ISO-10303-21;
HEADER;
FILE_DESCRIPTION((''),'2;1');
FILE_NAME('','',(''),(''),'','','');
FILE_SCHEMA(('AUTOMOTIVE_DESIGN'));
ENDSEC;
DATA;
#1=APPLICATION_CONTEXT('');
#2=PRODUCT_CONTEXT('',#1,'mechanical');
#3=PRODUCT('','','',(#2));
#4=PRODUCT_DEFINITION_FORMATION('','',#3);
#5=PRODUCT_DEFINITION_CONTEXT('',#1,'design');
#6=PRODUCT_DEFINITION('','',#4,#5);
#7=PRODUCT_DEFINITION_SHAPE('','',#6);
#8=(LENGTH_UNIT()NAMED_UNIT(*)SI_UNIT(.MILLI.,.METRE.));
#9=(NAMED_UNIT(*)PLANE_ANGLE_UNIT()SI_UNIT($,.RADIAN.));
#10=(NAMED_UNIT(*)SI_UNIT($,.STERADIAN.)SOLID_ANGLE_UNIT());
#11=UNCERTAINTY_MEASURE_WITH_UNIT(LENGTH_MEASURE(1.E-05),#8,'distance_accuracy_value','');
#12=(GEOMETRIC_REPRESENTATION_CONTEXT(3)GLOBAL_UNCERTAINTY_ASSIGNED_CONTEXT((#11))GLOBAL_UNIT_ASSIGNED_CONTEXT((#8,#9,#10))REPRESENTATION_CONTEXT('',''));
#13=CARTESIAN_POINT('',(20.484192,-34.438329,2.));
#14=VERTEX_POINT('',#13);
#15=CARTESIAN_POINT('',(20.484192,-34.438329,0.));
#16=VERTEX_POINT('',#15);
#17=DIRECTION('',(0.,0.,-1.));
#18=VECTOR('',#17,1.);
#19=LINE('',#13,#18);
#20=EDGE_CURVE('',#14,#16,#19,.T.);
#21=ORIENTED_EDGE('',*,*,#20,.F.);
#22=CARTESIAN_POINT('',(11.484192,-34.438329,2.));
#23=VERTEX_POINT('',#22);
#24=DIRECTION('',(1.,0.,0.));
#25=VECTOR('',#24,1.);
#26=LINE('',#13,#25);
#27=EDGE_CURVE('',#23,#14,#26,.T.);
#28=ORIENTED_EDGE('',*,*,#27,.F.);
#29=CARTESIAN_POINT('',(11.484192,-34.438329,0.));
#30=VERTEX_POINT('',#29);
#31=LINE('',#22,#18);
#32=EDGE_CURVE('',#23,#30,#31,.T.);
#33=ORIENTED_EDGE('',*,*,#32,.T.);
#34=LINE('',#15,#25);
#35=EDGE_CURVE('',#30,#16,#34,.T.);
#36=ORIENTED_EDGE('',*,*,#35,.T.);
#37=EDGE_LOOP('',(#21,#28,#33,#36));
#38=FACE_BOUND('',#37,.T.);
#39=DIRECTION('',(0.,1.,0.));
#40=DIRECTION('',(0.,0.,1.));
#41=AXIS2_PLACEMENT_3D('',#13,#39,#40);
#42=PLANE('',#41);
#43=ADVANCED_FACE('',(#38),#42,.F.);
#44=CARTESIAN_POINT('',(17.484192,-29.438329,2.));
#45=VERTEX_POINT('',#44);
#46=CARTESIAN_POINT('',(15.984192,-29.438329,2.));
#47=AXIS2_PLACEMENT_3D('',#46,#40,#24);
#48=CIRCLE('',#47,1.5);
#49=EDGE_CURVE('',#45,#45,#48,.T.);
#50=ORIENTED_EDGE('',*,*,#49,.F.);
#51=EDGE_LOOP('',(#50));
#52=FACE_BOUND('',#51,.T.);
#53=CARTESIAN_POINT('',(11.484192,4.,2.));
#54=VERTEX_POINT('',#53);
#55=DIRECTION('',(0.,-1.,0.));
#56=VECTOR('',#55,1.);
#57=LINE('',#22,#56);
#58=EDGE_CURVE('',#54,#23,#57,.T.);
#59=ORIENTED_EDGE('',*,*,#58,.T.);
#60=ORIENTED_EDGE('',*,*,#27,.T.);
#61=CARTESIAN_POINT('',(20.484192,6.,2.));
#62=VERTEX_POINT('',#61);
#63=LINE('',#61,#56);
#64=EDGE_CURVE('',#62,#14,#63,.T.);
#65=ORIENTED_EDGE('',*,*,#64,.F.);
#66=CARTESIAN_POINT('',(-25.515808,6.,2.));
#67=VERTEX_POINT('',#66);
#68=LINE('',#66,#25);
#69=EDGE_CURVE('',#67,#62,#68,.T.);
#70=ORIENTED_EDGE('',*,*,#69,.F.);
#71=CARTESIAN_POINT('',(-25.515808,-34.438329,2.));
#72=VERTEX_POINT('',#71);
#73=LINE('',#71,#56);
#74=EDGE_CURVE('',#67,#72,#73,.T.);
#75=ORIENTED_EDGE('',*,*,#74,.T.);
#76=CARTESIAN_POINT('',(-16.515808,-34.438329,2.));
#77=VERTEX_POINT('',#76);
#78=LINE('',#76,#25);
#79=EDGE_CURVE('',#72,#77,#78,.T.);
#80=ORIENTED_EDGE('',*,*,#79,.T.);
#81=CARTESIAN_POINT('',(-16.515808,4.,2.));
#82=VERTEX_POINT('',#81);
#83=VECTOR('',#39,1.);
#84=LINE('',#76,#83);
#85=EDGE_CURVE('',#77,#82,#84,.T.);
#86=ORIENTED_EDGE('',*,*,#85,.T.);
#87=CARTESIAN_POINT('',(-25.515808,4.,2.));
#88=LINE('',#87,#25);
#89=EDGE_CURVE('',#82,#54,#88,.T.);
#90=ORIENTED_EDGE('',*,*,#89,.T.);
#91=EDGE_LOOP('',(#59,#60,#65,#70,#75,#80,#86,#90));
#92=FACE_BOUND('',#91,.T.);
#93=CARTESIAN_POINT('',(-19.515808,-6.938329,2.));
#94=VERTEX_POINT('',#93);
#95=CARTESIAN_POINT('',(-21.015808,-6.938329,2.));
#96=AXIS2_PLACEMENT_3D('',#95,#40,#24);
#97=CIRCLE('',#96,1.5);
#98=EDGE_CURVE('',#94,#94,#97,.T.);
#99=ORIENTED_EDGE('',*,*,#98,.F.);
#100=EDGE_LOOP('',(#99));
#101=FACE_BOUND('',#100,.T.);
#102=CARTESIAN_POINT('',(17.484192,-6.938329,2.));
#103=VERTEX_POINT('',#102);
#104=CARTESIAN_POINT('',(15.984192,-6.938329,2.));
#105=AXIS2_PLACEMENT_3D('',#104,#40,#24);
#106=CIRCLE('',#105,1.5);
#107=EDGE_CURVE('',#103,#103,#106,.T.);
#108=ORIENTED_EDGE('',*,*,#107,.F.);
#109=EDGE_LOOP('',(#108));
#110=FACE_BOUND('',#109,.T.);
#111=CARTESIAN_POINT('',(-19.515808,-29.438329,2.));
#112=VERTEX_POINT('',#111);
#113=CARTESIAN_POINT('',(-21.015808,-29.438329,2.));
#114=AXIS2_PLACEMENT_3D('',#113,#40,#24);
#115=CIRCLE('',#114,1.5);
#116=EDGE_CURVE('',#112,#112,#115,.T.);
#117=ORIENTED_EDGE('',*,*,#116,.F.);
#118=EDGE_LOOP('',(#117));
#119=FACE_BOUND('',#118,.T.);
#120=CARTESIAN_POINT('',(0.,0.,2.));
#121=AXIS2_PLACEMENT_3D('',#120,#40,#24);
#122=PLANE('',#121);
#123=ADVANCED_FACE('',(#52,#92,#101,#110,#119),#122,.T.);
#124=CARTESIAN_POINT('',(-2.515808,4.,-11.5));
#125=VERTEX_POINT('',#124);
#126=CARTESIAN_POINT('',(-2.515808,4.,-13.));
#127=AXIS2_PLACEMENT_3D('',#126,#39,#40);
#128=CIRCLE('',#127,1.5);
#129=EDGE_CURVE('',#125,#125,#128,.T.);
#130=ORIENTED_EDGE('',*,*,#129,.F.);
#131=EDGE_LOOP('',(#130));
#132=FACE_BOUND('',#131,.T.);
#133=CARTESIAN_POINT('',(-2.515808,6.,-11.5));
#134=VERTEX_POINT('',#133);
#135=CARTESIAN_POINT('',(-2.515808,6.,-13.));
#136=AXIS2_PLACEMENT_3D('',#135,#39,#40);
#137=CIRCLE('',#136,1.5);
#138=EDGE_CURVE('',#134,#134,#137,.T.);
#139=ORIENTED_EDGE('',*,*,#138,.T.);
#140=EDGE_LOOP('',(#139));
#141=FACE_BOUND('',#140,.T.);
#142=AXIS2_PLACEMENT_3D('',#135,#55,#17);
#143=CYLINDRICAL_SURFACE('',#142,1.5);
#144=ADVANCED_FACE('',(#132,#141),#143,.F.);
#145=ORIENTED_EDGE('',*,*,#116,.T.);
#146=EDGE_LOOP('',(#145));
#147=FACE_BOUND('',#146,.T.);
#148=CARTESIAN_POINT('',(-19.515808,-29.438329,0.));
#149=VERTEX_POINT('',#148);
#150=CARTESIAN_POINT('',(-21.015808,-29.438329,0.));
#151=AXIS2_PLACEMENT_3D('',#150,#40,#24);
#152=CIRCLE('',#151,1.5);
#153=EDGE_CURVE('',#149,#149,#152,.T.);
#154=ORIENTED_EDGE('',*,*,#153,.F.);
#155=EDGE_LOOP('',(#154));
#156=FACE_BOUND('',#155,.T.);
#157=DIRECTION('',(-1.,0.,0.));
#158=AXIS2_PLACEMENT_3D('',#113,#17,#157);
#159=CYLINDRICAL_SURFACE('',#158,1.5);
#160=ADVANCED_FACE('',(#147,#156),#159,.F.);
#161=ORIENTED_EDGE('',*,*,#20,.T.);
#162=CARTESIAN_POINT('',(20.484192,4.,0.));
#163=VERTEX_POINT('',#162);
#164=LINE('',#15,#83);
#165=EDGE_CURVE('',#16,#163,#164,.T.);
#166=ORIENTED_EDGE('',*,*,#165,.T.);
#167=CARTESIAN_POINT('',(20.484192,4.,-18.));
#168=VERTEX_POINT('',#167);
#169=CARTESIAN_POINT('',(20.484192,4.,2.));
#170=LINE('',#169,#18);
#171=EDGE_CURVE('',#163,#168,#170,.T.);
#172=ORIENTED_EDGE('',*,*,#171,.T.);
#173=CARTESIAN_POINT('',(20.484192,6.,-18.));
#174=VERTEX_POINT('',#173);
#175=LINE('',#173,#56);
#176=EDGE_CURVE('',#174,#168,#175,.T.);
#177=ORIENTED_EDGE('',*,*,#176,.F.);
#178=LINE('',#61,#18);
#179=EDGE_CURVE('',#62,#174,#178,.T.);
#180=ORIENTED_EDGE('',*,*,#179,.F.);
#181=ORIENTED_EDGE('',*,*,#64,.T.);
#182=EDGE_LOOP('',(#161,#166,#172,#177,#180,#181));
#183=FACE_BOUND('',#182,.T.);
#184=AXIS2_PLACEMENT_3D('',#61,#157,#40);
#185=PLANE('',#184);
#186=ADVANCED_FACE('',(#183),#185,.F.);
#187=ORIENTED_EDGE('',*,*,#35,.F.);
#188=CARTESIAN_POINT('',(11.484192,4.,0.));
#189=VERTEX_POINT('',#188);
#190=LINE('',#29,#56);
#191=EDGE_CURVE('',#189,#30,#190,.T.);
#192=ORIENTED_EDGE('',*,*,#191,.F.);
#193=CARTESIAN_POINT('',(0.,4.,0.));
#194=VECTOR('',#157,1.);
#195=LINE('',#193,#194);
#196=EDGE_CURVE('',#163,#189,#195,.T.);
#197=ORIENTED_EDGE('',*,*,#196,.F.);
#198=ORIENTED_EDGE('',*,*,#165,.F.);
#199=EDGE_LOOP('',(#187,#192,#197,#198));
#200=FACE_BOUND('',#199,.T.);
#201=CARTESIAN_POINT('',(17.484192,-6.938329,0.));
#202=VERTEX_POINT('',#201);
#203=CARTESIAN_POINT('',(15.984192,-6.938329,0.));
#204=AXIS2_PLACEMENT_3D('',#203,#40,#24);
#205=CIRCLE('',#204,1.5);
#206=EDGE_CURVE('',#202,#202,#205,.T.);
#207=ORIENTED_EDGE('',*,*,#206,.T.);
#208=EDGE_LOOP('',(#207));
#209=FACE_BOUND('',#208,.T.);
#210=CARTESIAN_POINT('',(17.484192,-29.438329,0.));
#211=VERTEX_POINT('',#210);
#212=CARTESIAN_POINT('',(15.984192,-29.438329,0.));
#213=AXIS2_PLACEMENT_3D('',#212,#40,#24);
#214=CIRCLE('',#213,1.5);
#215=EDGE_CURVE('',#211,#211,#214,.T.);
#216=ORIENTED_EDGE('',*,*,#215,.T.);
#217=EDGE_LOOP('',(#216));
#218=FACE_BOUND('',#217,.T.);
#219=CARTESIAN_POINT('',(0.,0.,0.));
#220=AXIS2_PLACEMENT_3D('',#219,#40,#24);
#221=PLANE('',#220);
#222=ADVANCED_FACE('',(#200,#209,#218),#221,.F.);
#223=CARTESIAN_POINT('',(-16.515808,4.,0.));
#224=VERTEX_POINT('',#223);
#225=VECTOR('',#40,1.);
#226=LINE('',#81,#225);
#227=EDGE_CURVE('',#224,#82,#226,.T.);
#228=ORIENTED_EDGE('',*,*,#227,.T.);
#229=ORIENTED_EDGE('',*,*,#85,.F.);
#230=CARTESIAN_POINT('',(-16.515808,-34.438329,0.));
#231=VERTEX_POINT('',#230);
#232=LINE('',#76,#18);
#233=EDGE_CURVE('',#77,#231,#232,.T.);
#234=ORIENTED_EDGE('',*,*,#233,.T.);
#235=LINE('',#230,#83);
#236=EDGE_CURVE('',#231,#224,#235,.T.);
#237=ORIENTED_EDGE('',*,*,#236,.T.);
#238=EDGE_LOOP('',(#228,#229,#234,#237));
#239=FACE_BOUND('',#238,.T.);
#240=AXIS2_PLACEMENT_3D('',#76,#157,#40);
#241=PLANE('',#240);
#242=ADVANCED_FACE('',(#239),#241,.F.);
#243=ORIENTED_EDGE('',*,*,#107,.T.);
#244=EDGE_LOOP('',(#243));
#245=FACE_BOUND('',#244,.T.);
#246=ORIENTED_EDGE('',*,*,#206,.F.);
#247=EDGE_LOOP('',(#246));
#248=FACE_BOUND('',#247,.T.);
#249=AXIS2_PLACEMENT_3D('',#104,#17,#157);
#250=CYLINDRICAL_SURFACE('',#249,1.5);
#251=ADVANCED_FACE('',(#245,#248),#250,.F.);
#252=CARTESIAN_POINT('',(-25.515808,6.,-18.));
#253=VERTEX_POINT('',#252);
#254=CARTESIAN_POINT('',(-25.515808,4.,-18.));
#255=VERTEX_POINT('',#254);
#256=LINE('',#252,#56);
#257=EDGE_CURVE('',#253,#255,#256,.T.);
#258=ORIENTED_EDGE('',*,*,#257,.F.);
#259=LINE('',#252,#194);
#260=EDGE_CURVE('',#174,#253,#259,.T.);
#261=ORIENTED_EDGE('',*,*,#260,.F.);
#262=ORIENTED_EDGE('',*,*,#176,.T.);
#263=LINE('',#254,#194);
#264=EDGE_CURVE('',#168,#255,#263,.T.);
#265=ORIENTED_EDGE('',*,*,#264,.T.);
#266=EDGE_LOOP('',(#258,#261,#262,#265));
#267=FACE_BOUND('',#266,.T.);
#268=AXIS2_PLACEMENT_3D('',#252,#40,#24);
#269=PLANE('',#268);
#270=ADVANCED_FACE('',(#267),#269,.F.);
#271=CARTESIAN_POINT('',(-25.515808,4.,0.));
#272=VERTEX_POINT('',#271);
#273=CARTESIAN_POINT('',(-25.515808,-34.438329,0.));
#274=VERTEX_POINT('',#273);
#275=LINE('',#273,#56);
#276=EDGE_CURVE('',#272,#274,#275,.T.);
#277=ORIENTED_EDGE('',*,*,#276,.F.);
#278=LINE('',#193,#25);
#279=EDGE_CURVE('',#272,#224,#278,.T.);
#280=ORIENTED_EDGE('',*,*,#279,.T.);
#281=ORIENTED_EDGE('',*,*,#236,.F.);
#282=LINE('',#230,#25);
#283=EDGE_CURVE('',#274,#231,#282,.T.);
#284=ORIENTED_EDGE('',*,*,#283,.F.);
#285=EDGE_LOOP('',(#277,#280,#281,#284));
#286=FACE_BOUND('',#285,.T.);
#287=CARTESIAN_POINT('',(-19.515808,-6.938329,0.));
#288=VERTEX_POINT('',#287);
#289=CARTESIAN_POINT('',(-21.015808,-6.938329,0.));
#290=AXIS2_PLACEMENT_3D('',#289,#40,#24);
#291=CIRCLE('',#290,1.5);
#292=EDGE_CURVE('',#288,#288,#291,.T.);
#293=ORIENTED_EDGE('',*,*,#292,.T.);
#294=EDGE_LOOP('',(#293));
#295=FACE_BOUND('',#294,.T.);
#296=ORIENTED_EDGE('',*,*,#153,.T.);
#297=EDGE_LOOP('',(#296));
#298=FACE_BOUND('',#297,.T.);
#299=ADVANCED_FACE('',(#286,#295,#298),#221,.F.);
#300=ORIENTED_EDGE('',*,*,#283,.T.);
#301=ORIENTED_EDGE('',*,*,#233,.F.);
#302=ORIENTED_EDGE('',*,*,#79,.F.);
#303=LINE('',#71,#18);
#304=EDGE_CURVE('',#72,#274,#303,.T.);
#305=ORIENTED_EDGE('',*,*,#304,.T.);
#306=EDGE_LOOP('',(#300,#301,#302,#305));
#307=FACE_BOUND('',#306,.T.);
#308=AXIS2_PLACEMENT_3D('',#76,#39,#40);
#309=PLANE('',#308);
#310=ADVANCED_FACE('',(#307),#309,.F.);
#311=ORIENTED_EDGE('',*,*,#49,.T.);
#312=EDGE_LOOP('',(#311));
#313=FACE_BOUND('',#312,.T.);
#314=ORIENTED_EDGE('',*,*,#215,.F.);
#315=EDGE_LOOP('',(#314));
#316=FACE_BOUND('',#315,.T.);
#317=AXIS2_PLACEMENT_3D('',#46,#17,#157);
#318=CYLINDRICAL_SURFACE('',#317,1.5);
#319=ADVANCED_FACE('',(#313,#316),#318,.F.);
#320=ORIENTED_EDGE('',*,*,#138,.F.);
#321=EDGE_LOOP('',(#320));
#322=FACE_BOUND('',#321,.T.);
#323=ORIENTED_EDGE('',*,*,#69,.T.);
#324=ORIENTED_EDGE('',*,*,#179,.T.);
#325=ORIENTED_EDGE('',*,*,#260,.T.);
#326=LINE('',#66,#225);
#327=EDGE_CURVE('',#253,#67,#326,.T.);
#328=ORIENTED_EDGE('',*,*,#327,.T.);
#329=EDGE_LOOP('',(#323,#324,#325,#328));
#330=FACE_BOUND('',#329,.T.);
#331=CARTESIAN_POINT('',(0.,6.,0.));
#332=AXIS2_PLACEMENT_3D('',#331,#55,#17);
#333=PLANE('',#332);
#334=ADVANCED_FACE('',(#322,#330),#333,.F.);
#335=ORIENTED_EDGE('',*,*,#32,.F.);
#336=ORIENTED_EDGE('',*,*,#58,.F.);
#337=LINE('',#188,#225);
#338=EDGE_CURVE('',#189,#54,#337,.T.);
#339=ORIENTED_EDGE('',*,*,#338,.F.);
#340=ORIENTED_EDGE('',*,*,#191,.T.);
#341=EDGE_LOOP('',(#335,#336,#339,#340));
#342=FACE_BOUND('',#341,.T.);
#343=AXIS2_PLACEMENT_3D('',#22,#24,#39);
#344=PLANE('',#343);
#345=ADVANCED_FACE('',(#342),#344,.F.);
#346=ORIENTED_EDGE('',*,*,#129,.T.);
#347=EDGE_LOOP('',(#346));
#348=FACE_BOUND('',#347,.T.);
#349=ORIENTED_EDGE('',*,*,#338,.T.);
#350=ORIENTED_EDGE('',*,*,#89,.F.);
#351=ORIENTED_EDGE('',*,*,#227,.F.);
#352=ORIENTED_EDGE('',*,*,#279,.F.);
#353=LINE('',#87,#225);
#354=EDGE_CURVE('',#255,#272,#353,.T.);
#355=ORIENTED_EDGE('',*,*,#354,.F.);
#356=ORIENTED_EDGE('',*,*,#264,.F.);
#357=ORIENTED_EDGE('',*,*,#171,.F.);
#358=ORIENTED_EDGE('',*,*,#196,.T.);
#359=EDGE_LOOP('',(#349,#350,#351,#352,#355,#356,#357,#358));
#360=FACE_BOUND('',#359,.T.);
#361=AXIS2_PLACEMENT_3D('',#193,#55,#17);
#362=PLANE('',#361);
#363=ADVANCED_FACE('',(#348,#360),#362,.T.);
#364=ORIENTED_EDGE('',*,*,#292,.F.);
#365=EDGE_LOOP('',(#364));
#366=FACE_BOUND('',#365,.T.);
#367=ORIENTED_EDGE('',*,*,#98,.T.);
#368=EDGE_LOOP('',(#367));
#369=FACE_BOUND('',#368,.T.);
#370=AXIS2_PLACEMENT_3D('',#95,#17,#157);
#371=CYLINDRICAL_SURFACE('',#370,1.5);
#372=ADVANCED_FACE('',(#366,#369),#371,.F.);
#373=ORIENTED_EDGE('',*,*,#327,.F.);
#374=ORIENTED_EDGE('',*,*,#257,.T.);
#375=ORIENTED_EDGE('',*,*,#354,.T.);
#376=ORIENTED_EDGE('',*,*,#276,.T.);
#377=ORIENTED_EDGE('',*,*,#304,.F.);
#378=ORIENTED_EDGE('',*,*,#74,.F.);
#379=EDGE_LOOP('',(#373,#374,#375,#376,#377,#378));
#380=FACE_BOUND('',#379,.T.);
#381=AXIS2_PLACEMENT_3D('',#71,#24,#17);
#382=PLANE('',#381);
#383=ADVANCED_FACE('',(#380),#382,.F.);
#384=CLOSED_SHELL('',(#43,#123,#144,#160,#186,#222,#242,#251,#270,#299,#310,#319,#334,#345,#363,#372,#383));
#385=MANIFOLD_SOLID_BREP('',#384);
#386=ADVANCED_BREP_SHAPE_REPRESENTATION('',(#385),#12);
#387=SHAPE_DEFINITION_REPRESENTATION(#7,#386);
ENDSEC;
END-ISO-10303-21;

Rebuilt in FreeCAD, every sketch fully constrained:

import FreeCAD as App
import Part
import Sketcher
from FreeCAD import Vector


def add_polygon(sketch, points):
    """Adds a closed chain of lines whose ends are joined by coincident constraints."""
    first, n = sketch.GeometryCount, len(points)
    for a, b in zip(points, points[1:] + points[:1]):
        sketch.addGeometry(Part.LineSegment(App.Vector(*a, 0), App.Vector(*b, 0)), False)
    for i in range(n):
        sketch.addConstraint(Sketcher.Constraint("Coincident", first + i, 2, first + (i + 1) % n, 1))

doc = App.newDocument("Part")
params = doc.addObject("Spreadsheet::Sheet", "Params")
for row, (alias, value) in enumerate([
    ("sketch1_diameter", "3 mm"),
    ("sketch1_width", "9 mm"),
    ("sketch1_height", "40 mm"),
    ("pad1_length", "2 mm"),
    ("sketch2_diameter", "3 mm"),
    ("sketch2_width", "9 mm"),
    ("sketch2_height", "40 mm"),
    ("pad2_length", "2 mm"),
    ("sketch3_diameter", "3 mm"),
    ("sketch3_width", "46 mm"),
    ("sketch3_height", "20 mm"),
    ("pad3_length", "2 mm"),
], start=1):
    params.set(f"A{row}", alias)
    params.set(f"B{row}", "=" + value)
    params.setAlias(f"B{row}", alias)

body = doc.addObject("PartDesign::Body", "Body")

sketch1 = doc.addObject("Sketcher::SketchObject", "Sketch")
body.addObject(sketch1)
sketch1.AttachmentSupport = (doc.XY_Plane, [""])
sketch1.MapMode = "FlatFace"
add_polygon(sketch1, [(-25.515808, 5.561671), (-25.515808, -34.438329), (-16.515808, -34.438329), (-16.515808, 5.561671)])
sketch1.addGeometry(Part.Circle(Vector(-21.015808, -29.438329, 0), Vector(0, 0, 1), 1.5), False)
sketch1.addGeometry(Part.Circle(Vector(-21.015808, -6.938329, 0), Vector(0, 0, 1), 1.5), False)
sketch1.addConstraint(Sketcher.Constraint("Vertical", 0))
sketch1.addConstraint(Sketcher.Constraint("Horizontal", 1))
sketch1.addConstraint(Sketcher.Constraint("Vertical", 2))
sketch1.addConstraint(Sketcher.Constraint("Horizontal", 3))
sketch1.addConstraint(Sketcher.Constraint("Equal", 4, 5))
sketch1.addConstraint(Sketcher.Constraint("Vertical", 4, 3, 5, 3))
sketch1.addConstraint(Sketcher.Constraint("Diameter", 4, 3.0))
sketch1.addConstraint(Sketcher.Constraint("DistanceX", 1, 1, 1, 2, 9.0))
sketch1.addConstraint(Sketcher.Constraint("DistanceY", 0, 2, 0, 1, 40.0))
sketch1.addConstraint(Sketcher.Constraint("DistanceY", 0, 2, 4, 3, 5.0))
sketch1.addConstraint(Sketcher.Constraint("DistanceY", 4, 3, 5, 3, 22.5))
sketch1.addConstraint(Sketcher.Constraint("DistanceX", 0, 2, 4, 3, 4.5))
sketch1.addConstraint(Sketcher.Constraint("DistanceX", 4, 3, -1, 1, 21.015808))
sketch1.addConstraint(Sketcher.Constraint("DistanceY", 4, 3, -1, 1, 29.438329))
sketch1.setExpression("Constraints[10]", "Params.sketch1_diameter")
sketch1.setExpression("Constraints[11]", "Params.sketch1_width")
sketch1.setExpression("Constraints[12]", "Params.sketch1_height")
pad1 = doc.addObject("PartDesign::Pad", "Pad")
body.addObject(pad1)
pad1.Profile = sketch1
pad1.setExpression("Length", "Params.pad1_length")
body2 = doc.addObject("PartDesign::Body", "Body001")

sketch2 = doc.addObject("Sketcher::SketchObject", "Sketch001")
body2.addObject(sketch2)
sketch2.AttachmentSupport = (doc.getObject("XY_Plane001"), [""])
sketch2.MapMode = "FlatFace"
add_polygon(sketch2, [(11.484192, 5.561671), (11.484192, -34.438329), (20.484192, -34.438329), (20.484192, 5.561671)])
sketch2.addGeometry(Part.Circle(Vector(15.984192, -29.438329, 0), Vector(0, 0, 1), 1.5), False)
sketch2.addGeometry(Part.Circle(Vector(15.984192, -6.938329, 0), Vector(0, 0, 1), 1.5), False)
sketch2.addConstraint(Sketcher.Constraint("Vertical", 0))
sketch2.addConstraint(Sketcher.Constraint("Horizontal", 1))
sketch2.addConstraint(Sketcher.Constraint("Vertical", 2))
sketch2.addConstraint(Sketcher.Constraint("Horizontal", 3))
sketch2.addConstraint(Sketcher.Constraint("Equal", 4, 5))
sketch2.addConstraint(Sketcher.Constraint("Vertical", 4, 3, 5, 3))
sketch2.addConstraint(Sketcher.Constraint("Diameter", 4, 3.0))
sketch2.addConstraint(Sketcher.Constraint("DistanceX", 1, 1, 1, 2, 9.0))
sketch2.addConstraint(Sketcher.Constraint("DistanceY", 0, 2, 0, 1, 40.0))
sketch2.addConstraint(Sketcher.Constraint("DistanceY", 0, 2, 4, 3, 5.0))
sketch2.addConstraint(Sketcher.Constraint("DistanceY", 4, 3, 5, 3, 22.5))
sketch2.addConstraint(Sketcher.Constraint("DistanceX", 0, 2, 4, 3, 4.5))
sketch2.addConstraint(Sketcher.Constraint("DistanceX", -1, 1, 4, 3, 15.984192))
sketch2.addConstraint(Sketcher.Constraint("DistanceY", 4, 3, -1, 1, 29.438329))
sketch2.setExpression("Constraints[10]", "Params.sketch2_diameter")
sketch2.setExpression("Constraints[11]", "Params.sketch2_width")
sketch2.setExpression("Constraints[12]", "Params.sketch2_height")
pad2 = doc.addObject("PartDesign::Pad", "Pad001")
body2.addObject(pad2)
pad2.Profile = sketch2
pad2.setExpression("Length", "Params.pad2_length")
body.AllowCompound = True
doc.recompute()

boolean = doc.addObject("PartDesign::Boolean", "Boolean")
body.addObject(boolean)
boolean.Type = "Fuse"
boolean.addObjects([body2])

sketch3 = doc.addObject("Sketcher::SketchObject", "Sketch002")
body.addObject(sketch3)
sketch3.AttachmentSupport = (doc.XZ_Plane, [""])
sketch3.MapMode = "FlatFace"
sketch3.AttachmentOffset = App.Placement(Vector(0, 0, -4), App.Rotation())
add_polygon(sketch3, [(-25.515808, -18), (-25.515808, 2), (20.484192, 2), (20.484192, -18)])
sketch3.addGeometry(Part.Circle(Vector(-2.515808, -13, 0), Vector(0, 0, 1), 1.5), False)
sketch3.addConstraint(Sketcher.Constraint("Vertical", 0))
sketch3.addConstraint(Sketcher.Constraint("Horizontal", 1))
sketch3.addConstraint(Sketcher.Constraint("Vertical", 2))
sketch3.addConstraint(Sketcher.Constraint("Horizontal", 3))
sketch3.addConstraint(Sketcher.Constraint("Diameter", 4, 3.0))
sketch3.addConstraint(Sketcher.Constraint("DistanceX", 1, 1, 1, 2, 46.0))
sketch3.addConstraint(Sketcher.Constraint("DistanceY", 0, 1, 0, 2, 20.0))
sketch3.addConstraint(Sketcher.Constraint("DistanceY", 4, 3, -1, 1, 13.0))
sketch3.addConstraint(Sketcher.Constraint("DistanceY", -1, 1, 0, 2, 2.0))
sketch3.addConstraint(Sketcher.Constraint("DistanceX", 0, 2, 4, 3, 23.0))
sketch3.addConstraint(Sketcher.Constraint("DistanceX", 4, 3, -1, 1, 2.515808))
sketch3.setExpression("Constraints[8]", "Params.sketch3_diameter")
sketch3.setExpression("Constraints[9]", "Params.sketch3_width")
sketch3.setExpression("Constraints[10]", "Params.sketch3_height")
pad3 = doc.addObject("PartDesign::Pad", "Pad002")
body.addObject(pad3)
pad3.Profile = sketch3
pad3.setExpression("Length", "Params.pad3_length")
pad3.Reversed = True

doc.recompute()
